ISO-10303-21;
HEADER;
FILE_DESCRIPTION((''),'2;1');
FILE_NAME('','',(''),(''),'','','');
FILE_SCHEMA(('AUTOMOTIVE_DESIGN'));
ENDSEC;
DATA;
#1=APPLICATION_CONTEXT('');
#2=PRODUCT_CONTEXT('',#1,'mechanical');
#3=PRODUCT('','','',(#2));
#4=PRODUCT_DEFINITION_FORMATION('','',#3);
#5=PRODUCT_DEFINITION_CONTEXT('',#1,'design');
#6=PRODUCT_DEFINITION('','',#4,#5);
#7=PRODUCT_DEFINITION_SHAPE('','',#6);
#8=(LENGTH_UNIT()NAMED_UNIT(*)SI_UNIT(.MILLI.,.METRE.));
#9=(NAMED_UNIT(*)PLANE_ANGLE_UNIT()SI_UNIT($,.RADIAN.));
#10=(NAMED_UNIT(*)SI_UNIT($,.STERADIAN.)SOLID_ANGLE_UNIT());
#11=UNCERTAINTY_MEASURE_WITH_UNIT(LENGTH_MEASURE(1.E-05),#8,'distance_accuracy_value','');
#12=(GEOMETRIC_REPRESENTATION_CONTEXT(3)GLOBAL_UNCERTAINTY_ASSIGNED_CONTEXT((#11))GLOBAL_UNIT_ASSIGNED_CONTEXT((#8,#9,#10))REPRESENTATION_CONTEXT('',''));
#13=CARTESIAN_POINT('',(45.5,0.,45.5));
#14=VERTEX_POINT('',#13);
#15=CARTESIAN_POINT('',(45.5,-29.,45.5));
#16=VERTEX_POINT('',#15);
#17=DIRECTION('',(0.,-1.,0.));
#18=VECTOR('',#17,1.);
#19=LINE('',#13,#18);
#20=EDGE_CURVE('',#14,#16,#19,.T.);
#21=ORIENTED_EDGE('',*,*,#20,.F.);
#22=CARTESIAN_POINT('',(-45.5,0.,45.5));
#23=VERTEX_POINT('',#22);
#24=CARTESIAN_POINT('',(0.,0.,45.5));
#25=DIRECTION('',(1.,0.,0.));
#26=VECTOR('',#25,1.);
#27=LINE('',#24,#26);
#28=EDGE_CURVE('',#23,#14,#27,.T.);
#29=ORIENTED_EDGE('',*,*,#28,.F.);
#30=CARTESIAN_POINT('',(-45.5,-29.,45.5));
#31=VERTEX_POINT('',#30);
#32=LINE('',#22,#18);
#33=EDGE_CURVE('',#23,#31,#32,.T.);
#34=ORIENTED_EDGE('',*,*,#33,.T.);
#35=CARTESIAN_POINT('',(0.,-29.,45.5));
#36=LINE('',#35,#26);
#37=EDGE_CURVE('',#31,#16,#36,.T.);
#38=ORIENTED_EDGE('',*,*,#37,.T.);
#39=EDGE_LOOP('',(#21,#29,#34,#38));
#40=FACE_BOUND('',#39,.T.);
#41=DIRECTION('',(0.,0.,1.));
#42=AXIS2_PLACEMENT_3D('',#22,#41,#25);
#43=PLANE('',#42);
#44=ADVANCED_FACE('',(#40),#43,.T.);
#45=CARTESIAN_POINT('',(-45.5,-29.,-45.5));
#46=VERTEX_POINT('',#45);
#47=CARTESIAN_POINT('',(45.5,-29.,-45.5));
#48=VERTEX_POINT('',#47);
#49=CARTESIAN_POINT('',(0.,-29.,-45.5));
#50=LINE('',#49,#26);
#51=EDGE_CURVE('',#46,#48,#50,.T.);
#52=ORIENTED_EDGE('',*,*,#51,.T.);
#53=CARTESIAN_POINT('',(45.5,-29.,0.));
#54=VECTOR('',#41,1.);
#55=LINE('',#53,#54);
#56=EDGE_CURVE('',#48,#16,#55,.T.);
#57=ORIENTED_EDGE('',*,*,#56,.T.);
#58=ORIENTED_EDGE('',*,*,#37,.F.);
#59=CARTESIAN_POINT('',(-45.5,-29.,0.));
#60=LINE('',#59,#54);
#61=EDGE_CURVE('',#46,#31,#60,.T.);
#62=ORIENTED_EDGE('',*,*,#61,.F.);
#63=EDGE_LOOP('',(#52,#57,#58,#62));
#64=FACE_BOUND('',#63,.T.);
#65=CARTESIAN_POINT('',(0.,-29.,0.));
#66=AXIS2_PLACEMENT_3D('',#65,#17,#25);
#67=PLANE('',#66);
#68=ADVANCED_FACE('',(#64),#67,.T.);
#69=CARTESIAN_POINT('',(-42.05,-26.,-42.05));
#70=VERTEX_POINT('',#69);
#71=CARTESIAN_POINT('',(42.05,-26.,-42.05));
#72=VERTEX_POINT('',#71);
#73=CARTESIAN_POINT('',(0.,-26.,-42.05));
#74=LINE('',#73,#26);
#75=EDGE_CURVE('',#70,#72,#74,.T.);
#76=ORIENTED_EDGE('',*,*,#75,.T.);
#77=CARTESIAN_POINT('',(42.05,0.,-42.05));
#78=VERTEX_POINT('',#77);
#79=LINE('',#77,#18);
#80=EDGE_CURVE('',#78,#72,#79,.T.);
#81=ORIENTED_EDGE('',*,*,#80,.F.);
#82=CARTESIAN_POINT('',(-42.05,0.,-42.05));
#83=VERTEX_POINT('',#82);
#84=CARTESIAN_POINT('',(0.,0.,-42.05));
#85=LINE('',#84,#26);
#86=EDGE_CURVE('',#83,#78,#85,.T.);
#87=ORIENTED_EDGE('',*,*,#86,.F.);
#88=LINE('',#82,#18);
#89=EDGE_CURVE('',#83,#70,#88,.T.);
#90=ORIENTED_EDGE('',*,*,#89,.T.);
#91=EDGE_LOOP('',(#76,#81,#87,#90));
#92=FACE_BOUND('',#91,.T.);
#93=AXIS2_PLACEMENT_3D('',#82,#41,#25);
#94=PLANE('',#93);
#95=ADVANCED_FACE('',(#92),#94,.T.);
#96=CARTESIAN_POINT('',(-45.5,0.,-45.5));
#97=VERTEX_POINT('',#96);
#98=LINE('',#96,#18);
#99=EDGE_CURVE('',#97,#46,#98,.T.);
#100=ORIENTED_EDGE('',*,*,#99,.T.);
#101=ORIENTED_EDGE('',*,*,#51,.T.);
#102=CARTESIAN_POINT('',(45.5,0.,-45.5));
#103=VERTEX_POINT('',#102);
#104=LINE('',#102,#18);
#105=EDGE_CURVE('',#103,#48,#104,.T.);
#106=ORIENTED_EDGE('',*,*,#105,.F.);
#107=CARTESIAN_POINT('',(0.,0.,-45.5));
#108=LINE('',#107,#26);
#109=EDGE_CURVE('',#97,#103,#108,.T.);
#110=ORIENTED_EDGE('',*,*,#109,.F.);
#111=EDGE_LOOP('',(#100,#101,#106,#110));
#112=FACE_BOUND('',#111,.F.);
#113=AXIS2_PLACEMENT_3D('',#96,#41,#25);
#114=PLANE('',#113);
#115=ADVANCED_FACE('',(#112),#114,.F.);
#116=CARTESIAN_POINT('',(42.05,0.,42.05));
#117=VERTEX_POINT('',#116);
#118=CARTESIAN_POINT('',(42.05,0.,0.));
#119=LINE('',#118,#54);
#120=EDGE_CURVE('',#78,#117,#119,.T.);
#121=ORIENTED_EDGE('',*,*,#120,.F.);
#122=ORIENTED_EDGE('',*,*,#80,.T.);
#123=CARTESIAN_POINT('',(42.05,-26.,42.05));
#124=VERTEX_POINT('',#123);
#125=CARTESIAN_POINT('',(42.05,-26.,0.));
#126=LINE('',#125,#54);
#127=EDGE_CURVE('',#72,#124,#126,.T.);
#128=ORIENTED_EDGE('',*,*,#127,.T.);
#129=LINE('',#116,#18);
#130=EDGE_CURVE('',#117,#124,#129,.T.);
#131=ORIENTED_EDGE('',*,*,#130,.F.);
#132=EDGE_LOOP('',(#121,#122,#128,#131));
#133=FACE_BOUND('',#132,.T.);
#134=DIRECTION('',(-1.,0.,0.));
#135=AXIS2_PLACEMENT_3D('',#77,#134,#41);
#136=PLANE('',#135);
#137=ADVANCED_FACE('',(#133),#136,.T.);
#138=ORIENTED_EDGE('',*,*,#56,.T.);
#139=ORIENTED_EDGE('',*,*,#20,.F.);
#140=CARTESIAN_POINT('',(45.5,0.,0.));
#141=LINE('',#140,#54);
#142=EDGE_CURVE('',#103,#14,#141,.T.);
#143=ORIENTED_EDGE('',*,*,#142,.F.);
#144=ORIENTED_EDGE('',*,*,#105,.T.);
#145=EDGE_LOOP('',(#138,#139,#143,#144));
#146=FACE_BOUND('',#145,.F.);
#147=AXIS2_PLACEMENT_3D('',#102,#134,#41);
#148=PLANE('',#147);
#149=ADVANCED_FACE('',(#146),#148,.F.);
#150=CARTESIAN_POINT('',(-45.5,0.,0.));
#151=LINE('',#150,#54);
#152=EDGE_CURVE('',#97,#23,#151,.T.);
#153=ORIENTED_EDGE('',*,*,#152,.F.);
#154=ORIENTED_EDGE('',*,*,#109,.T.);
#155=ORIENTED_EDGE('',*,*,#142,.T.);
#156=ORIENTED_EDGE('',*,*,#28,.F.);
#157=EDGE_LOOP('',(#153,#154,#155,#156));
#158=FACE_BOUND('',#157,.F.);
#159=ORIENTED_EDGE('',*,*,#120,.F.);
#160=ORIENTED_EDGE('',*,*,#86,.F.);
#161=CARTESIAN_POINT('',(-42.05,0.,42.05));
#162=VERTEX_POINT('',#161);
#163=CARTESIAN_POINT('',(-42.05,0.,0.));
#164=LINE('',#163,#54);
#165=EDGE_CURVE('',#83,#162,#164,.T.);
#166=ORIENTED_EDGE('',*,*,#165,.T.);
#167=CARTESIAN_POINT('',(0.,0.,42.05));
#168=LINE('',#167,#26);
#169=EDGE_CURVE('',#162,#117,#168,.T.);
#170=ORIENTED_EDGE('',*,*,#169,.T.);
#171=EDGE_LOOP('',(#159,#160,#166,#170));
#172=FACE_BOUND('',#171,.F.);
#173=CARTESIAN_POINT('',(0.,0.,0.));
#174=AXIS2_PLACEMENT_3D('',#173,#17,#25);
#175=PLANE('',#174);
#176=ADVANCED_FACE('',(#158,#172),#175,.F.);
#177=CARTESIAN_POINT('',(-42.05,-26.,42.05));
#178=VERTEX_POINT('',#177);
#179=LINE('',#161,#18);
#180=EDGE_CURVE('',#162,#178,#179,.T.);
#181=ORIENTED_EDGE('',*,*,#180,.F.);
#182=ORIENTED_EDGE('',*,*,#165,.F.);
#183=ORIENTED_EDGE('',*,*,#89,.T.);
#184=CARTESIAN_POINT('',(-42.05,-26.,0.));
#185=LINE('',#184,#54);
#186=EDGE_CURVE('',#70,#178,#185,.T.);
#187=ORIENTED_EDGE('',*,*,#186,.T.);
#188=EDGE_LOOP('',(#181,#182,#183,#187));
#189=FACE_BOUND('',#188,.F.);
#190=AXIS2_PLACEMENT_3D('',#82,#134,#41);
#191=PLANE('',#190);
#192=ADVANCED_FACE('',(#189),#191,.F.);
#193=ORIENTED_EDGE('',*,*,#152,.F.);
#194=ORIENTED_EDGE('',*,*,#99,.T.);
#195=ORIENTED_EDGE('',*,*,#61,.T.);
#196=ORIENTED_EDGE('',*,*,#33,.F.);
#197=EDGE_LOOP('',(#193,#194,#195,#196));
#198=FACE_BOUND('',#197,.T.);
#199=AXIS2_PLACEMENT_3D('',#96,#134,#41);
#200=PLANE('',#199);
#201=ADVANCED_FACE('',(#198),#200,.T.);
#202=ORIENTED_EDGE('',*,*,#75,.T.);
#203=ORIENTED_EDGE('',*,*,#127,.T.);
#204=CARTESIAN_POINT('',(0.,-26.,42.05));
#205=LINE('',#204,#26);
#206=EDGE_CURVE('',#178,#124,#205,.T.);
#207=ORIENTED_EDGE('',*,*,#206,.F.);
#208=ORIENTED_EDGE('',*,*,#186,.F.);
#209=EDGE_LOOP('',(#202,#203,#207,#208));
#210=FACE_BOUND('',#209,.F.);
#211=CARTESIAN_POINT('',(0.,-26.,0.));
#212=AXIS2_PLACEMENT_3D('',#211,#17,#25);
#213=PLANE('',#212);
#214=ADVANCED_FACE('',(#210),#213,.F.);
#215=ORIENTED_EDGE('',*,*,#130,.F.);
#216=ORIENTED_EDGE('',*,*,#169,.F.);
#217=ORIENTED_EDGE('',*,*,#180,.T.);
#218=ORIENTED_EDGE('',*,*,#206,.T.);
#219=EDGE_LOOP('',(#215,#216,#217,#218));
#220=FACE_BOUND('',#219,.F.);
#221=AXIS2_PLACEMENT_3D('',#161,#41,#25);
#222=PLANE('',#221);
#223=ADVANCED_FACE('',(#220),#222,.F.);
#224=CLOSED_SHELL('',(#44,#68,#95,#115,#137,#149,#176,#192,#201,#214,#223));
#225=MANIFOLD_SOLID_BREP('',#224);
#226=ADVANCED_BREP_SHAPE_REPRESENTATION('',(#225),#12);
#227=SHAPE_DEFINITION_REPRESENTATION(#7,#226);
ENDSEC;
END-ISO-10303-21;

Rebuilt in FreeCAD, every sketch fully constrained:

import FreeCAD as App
import Part
import Sketcher

V = App.Vector

doc = App.newDocument("Part")
params = doc.addObject("Spreadsheet::Sheet", "Params")
for row, (alias, value) in enumerate([
    ("sketch1_width", "91 mm"),
    ("pad1_length", "29 mm"),
    ("sketch2_width", "84.1 mm"),
    ("pocket1_length", "26 mm"),
], start=1):
    params.set(f"A{row}", alias)
    params.set(f"B{row}", "=" + value)
    params.setAlias(f"B{row}", alias)

body = doc.addObject("PartDesign::Body", "Body")

# Sketch on XZ plane
sketch1 = body.newObject("Sketcher::SketchObject", "Sketch")
sketch1.AttachmentSupport = (doc.getObject("XZ_Plane"), [""])
sketch1.MapMode = "FlatFace"
sketch1.addGeometry([
    Part.LineSegment(V(-45.5, 45.5, 0), V(-45.5, -45.5, 0)),
    Part.LineSegment(V(-45.5, -45.5, 0), V(45.5, -45.5, 0)),
    Part.LineSegment(V(45.5, -45.5, 0), V(45.5, 45.5, 0)),
    Part.LineSegment(V(45.5, 45.5, 0), V(-45.5, 45.5, 0)),
], False)
sketch1.addConstraint([
    Sketcher.Constraint("Coincident", 0, 2, 1, 1),
    Sketcher.Constraint("Coincident", 1, 2, 2, 1),
    Sketcher.Constraint("Coincident", 2, 2, 3, 1),
    Sketcher.Constraint("Coincident", 3, 2, 0, 1),
    Sketcher.Constraint("Vertical", 0),
    Sketcher.Constraint("Horizontal", 1),
    Sketcher.Constraint("Vertical", 2),
    Sketcher.Constraint("Horizontal", 3),
    Sketcher.Constraint("Symmetric", 0, 2, 2, 2, -1, 1),
    Sketcher.Constraint("Equal", 3, 0),
    Sketcher.Constraint("DistanceX", 1, 1, 1, 2, 91.0),
])
sketch1.setExpression("Constraints[10]", "Params.sketch1_width")
pad1 = body.newObject("PartDesign::Pad", "Pad")
pad1.Profile = sketch1
pad1.setExpression("Length", "Params.pad1_length")

# Sketch on XZ plane
sketch2 = body.newObject("Sketcher::SketchObject", "Sketch001")
sketch2.AttachmentSupport = (doc.getObject("XZ_Plane"), [""])
sketch2.MapMode = "FlatFace"
sketch2.addGeometry([
    Part.LineSegment(V(-42.05, 42.05, 0), V(-42.05, -42.05, 0)),
    Part.LineSegment(V(-42.05, -42.05, 0), V(42.05, -42.05, 0)),
    Part.LineSegment(V(42.05, -42.05, 0), V(42.05, 42.05, 0)),
    Part.LineSegment(V(42.05, 42.05, 0), V(-42.05, 42.05, 0)),
], False)
sketch2.addConstraint([
    Sketcher.Constraint("Coincident", 0, 2, 1, 1),
    Sketcher.Constraint("Coincident", 1, 2, 2, 1),
    Sketcher.Constraint("Coincident", 2, 2, 3, 1),
    Sketcher.Constraint("Coincident", 3, 2, 0, 1),
    Sketcher.Constraint("Vertical", 0),
    Sketcher.Constraint("Horizontal", 1),
    Sketcher.Constraint("Vertical", 2),
    Sketcher.Constraint("Horizontal", 3),
    Sketcher.Constraint("Symmetric", 0, 2, 2, 2, -1, 1),
    Sketcher.Constraint("Equal", 3, 0),
    Sketcher.Constraint("DistanceX", 1, 1, 1, 2, 84.1),
])
sketch2.setExpression("Constraints[10]", "Params.sketch2_width")
pocket1 = body.newObject("PartDesign::Pocket", "Pocket")
pocket1.Profile = sketch2
pocket1.setExpression("Length", "Params.pocket1_length")
pocket1.Reversed = True

doc.recompute()
